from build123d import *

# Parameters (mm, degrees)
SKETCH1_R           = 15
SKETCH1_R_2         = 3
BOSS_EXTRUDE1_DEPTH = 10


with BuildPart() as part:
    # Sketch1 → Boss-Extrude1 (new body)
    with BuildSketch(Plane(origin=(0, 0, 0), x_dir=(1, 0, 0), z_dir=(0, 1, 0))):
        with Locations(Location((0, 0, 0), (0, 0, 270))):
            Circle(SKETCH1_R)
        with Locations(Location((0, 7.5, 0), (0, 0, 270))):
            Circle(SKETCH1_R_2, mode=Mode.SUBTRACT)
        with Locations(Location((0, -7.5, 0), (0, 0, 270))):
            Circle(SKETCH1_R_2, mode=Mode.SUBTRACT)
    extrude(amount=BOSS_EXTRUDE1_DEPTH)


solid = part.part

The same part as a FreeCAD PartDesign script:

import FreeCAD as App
import Part
import Sketcher

doc = App.newDocument("Part")
params = doc.addObject("Spreadsheet::Sheet", "Params")
for row, (alias, value) in enumerate([
    ("sketch1_diameter", "30 mm"),
    ("sketch1_diameter2", "6 mm"),
    ("pad1_length", "10 mm"),
], start=1):
    params.set(f"A{row}", alias)
    params.set(f"B{row}", "=" + value)
    params.setAlias(f"B{row}", alias)

body = doc.addObject("PartDesign::Body", "Body")

# Sketch on XZ plane
sketch1 = body.newObject("Sketcher::SketchObject", "Sketch")
sketch1.AttachmentSupport = (doc.getObject("XZ_Plane"), [""])
sketch1.MapMode = "FlatFace"
sketch1.addGeometry(Part.Circle(App.Vector(0, 0, 0), App.Vector(0, 0, 1), 15), False)
sketch1.addGeometry(Part.Circle(App.Vector(0, -7.5, 0), App.Vector(0, 0, 1), 3), False)
sketch1.addGeometry(Part.Circle(App.Vector(0, 7.5, 0), App.Vector(0, 0, 1), 3), False)
sketch1.addConstraint(Sketcher.Constraint("Coincident", 0, 3, -1, 1))
sketch1.addConstraint(Sketcher.Constraint("Equal", 1, 2))
sketch1.addConstraint(Sketcher.Constraint("Symmetric", 1, 3, 2, 3, -1, 1))
sketch1.addConstraint(Sketcher.Constraint("PointOnObject", 1, 3, -2))
sketch1.addConstraint(Sketcher.Constraint("Diameter", 0, 30.0))
sketch1.addConstraint(Sketcher.Constraint("Diameter", 1, 6.0))
sketch1.addConstraint(Sketcher.Constraint("DistanceY", 1, 3, 2, 3, 15.0))
sketch1.setExpression("Constraints[4]", "Params.sketch1_diameter")
sketch1.setExpression("Constraints[5]", "Params.sketch1_diameter2")
pad1 = body.newObject("PartDesign::Pad", "Pad")
pad1.Profile = sketch1
pad1.setExpression("Length", "Params.pad1_length")
pad1.Reversed = True

doc.recompute()
